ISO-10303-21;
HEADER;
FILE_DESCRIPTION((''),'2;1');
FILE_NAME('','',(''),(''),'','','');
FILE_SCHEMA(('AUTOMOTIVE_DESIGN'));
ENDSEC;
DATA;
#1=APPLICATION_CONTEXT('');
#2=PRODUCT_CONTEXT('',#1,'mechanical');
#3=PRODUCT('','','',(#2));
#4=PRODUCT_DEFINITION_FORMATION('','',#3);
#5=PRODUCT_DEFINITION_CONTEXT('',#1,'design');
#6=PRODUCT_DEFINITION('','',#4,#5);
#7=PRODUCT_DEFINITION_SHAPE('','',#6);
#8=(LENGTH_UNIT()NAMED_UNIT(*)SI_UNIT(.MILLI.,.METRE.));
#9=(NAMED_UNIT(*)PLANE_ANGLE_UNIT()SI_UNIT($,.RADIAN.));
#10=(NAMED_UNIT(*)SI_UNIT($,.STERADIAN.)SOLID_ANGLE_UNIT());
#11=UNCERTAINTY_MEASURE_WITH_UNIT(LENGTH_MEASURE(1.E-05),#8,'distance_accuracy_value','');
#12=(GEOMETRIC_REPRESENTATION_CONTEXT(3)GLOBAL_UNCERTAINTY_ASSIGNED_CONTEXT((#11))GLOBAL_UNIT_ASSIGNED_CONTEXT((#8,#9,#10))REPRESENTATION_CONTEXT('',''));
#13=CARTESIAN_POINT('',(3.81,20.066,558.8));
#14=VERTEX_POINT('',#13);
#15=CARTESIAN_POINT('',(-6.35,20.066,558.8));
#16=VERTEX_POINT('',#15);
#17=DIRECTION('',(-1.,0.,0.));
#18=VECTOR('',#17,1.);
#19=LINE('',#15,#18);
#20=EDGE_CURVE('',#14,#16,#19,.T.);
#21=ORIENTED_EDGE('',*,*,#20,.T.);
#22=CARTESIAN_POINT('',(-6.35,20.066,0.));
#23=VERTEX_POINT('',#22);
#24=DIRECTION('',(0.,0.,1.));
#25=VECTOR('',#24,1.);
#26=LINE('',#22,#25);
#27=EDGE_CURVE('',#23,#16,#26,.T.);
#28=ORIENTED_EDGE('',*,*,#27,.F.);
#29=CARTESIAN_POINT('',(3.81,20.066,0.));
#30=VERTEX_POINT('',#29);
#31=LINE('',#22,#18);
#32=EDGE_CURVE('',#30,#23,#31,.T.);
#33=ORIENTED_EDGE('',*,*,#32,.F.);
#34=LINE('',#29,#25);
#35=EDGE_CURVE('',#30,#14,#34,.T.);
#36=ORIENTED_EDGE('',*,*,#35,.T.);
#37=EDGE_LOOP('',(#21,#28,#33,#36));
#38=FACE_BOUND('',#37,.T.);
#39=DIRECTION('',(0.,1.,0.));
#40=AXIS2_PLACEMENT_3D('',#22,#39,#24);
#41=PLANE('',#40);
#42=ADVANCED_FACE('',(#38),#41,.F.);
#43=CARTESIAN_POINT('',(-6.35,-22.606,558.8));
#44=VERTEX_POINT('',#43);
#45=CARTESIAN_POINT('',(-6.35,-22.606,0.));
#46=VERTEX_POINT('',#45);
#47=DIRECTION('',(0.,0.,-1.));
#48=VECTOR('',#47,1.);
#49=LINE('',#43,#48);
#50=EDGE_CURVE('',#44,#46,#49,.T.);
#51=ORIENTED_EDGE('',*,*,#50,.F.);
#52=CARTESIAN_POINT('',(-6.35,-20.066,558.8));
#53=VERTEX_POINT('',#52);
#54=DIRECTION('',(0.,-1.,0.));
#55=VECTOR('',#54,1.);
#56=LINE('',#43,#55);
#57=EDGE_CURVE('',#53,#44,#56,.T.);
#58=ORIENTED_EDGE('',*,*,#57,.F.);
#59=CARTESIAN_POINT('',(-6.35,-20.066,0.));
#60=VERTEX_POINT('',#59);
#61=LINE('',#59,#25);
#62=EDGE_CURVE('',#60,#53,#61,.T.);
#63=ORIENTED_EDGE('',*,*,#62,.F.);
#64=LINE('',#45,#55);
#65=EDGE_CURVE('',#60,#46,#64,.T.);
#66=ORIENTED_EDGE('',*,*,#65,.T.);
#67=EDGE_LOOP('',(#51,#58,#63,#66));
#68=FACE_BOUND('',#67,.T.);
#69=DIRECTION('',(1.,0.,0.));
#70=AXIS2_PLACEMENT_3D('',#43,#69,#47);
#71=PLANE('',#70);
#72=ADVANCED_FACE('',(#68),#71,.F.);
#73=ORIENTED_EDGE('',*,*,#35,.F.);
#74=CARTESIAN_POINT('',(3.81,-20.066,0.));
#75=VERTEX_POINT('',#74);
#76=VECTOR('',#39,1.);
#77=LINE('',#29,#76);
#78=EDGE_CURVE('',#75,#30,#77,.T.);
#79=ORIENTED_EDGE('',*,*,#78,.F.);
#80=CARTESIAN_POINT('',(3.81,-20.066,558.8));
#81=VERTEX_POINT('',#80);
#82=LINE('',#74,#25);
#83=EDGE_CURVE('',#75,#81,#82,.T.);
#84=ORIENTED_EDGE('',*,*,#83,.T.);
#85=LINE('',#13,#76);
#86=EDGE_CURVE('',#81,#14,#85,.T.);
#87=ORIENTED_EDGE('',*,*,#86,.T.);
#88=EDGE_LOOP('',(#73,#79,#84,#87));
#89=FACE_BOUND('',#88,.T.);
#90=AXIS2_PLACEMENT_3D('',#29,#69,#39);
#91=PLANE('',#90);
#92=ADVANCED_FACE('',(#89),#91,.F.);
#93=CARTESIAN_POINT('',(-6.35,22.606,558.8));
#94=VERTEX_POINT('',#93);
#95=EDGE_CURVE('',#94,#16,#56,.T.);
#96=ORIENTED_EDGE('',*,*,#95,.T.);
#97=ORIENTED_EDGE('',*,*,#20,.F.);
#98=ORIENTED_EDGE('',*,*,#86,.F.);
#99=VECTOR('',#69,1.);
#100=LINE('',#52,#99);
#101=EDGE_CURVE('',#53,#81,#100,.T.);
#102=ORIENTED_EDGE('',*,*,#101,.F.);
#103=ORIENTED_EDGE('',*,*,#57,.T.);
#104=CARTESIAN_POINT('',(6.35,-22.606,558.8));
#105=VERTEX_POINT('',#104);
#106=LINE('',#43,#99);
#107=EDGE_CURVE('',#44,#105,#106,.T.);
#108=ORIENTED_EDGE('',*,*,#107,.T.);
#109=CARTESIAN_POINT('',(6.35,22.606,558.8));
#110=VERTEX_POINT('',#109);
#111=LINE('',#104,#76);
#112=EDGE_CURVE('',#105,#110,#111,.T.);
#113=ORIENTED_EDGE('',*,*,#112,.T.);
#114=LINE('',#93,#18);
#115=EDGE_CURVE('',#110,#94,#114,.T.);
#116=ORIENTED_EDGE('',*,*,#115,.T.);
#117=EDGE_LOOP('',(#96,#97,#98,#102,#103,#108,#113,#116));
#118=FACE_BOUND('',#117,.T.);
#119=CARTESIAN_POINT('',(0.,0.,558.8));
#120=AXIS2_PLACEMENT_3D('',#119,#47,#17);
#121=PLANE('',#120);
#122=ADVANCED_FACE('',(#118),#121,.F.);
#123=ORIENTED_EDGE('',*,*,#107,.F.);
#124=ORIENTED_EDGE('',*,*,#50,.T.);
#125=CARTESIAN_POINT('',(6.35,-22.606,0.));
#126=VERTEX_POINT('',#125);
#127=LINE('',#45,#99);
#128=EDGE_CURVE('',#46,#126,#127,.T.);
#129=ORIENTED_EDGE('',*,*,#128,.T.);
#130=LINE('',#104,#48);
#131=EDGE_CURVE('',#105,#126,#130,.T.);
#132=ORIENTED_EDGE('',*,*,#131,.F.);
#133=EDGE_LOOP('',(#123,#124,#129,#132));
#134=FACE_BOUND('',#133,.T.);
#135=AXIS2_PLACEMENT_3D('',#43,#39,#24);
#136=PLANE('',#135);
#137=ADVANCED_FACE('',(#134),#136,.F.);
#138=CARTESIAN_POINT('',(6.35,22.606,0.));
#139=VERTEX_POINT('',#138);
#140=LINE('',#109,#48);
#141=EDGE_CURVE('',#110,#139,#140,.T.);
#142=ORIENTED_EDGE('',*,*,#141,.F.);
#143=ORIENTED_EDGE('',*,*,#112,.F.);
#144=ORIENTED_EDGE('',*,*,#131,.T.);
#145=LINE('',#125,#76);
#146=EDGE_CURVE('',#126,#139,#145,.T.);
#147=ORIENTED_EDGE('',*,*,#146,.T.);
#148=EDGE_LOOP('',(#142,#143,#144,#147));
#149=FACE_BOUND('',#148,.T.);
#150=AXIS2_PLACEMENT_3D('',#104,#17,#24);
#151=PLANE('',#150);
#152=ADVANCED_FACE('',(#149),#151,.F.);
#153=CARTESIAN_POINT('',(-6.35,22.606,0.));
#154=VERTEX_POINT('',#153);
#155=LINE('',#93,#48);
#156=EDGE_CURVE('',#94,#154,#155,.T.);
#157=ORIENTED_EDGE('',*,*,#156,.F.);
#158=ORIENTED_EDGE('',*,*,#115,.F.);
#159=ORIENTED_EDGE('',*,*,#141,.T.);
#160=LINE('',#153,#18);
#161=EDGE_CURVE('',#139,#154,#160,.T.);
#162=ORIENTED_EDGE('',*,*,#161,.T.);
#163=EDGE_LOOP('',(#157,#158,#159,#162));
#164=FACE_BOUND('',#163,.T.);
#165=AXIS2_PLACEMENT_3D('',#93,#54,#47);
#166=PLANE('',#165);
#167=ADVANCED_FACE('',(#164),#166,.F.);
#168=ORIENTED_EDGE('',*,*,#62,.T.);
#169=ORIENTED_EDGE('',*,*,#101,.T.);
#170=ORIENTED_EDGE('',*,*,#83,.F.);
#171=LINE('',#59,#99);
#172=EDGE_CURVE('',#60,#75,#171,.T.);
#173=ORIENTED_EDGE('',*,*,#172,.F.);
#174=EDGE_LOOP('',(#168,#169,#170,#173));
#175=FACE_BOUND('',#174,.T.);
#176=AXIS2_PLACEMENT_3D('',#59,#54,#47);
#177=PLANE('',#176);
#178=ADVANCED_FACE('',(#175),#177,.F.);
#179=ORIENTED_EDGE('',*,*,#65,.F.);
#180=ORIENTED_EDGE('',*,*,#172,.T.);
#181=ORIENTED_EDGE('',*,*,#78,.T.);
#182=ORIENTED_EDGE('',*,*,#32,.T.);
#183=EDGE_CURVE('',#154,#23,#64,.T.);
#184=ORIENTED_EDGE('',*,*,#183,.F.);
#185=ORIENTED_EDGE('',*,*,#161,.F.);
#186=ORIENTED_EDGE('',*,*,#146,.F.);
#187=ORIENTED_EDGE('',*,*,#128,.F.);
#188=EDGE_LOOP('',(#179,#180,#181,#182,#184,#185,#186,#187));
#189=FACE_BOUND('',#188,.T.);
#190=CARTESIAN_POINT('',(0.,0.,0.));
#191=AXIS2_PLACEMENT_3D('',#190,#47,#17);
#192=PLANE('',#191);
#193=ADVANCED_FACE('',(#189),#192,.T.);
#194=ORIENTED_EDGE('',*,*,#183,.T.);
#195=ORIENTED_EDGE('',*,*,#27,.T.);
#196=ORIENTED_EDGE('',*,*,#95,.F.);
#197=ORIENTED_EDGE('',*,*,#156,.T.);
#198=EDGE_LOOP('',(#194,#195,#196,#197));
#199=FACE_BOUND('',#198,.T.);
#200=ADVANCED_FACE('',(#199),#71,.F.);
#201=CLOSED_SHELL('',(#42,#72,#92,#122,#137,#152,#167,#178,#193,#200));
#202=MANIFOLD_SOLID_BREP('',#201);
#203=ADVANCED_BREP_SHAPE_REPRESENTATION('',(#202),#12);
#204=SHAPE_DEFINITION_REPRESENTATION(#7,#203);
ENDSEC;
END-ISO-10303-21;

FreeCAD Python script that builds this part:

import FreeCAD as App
import Part
import Sketcher

V = App.Vector
Q = App.Units.Quantity


def add_polygon(sketch, points):
    """Adds a closed chain of lines whose ends are joined by coincident constraints."""
    first, n = sketch.GeometryCount, len(points)
    for a, b in zip(points, points[1:] + points[:1]):
        sketch.addGeometry(Part.LineSegment(App.Vector(*a, 0), App.Vector(*b, 0)), False)
    for i in range(n):
        sketch.addConstraint(Sketcher.Constraint("Coincident", first + i, 2, first + (i + 1) % n, 1))

doc = App.newDocument("Part")
body = doc.addObject("PartDesign::Body", "Body")

sketch1 = doc.addObject("Sketcher::SketchObject", "Sketch")
body.addObject(sketch1)
sketch1.AttachmentSupport = (doc.XY_Plane, [""])
sketch1.MapMode = "FlatFace"
add_polygon(sketch1, [(-6, 23), (-6, -23), (6, -23), (6, 23)])
sketch1.addConstraint([
    Sketcher.Constraint("Vertical", 0),
    Sketcher.Constraint("Horizontal", 1),
    Sketcher.Constraint("Vertical", 2),
    Sketcher.Constraint("Horizontal", 3),
    Sketcher.Constraint("Symmetric", 0, 2, 2, 2, -1, 1),
    Sketcher.Constraint("DistanceX", 1, 1, 1, 2, Q("0.5 in")),
    Sketcher.Constraint("DistanceY", 0, 2, 0, 1, Q("1.78 in")),
])
pad1 = doc.addObject("PartDesign::Pad", "Pad")
body.addObject(pad1)
pad1.Profile = sketch1
pad1.Length = Q("22 in")

sketch2 = doc.addObject("Sketcher::SketchObject", "Sketch001")
body.addObject(sketch2)
sketch2.AttachmentSupport = (doc.XY_Plane, [""])
sketch2.MapMode = "FlatFace"
sketch2.AttachmentOffset = App.Placement(V(0, 0, 22 * 25.4), App.Rotation())
add_polygon(sketch2, [(-6, 20), (-6, -20), (4, -20), (4, 20)])
sketch2.addConstraint([
    Sketcher.Constraint("Vertical", 0),
    Sketcher.Constraint("Horizontal", 1),
    Sketcher.Constraint("Vertical", 2),
    Sketcher.Constraint("Horizontal", 3),
    Sketcher.Constraint("DistanceX", 1, 1, 1, 2, Q("0.4 in")),
    Sketcher.Constraint("DistanceY", 0, 2, 0, 1, Q("1.58 in")),
    Sketcher.Constraint("DistanceX", 0, 2, -1, 1, Q("0.25 in")),
    Sketcher.Constraint("DistanceY", 0, 2, -1, 1, Q("0.79 in")),
])
pocket1 = doc.addObject("PartDesign::Pocket", "Pocket")
body.addObject(pocket1)
pocket1.Profile = sketch2
pocket1.Type = "ThroughAll"

doc.recompute()
